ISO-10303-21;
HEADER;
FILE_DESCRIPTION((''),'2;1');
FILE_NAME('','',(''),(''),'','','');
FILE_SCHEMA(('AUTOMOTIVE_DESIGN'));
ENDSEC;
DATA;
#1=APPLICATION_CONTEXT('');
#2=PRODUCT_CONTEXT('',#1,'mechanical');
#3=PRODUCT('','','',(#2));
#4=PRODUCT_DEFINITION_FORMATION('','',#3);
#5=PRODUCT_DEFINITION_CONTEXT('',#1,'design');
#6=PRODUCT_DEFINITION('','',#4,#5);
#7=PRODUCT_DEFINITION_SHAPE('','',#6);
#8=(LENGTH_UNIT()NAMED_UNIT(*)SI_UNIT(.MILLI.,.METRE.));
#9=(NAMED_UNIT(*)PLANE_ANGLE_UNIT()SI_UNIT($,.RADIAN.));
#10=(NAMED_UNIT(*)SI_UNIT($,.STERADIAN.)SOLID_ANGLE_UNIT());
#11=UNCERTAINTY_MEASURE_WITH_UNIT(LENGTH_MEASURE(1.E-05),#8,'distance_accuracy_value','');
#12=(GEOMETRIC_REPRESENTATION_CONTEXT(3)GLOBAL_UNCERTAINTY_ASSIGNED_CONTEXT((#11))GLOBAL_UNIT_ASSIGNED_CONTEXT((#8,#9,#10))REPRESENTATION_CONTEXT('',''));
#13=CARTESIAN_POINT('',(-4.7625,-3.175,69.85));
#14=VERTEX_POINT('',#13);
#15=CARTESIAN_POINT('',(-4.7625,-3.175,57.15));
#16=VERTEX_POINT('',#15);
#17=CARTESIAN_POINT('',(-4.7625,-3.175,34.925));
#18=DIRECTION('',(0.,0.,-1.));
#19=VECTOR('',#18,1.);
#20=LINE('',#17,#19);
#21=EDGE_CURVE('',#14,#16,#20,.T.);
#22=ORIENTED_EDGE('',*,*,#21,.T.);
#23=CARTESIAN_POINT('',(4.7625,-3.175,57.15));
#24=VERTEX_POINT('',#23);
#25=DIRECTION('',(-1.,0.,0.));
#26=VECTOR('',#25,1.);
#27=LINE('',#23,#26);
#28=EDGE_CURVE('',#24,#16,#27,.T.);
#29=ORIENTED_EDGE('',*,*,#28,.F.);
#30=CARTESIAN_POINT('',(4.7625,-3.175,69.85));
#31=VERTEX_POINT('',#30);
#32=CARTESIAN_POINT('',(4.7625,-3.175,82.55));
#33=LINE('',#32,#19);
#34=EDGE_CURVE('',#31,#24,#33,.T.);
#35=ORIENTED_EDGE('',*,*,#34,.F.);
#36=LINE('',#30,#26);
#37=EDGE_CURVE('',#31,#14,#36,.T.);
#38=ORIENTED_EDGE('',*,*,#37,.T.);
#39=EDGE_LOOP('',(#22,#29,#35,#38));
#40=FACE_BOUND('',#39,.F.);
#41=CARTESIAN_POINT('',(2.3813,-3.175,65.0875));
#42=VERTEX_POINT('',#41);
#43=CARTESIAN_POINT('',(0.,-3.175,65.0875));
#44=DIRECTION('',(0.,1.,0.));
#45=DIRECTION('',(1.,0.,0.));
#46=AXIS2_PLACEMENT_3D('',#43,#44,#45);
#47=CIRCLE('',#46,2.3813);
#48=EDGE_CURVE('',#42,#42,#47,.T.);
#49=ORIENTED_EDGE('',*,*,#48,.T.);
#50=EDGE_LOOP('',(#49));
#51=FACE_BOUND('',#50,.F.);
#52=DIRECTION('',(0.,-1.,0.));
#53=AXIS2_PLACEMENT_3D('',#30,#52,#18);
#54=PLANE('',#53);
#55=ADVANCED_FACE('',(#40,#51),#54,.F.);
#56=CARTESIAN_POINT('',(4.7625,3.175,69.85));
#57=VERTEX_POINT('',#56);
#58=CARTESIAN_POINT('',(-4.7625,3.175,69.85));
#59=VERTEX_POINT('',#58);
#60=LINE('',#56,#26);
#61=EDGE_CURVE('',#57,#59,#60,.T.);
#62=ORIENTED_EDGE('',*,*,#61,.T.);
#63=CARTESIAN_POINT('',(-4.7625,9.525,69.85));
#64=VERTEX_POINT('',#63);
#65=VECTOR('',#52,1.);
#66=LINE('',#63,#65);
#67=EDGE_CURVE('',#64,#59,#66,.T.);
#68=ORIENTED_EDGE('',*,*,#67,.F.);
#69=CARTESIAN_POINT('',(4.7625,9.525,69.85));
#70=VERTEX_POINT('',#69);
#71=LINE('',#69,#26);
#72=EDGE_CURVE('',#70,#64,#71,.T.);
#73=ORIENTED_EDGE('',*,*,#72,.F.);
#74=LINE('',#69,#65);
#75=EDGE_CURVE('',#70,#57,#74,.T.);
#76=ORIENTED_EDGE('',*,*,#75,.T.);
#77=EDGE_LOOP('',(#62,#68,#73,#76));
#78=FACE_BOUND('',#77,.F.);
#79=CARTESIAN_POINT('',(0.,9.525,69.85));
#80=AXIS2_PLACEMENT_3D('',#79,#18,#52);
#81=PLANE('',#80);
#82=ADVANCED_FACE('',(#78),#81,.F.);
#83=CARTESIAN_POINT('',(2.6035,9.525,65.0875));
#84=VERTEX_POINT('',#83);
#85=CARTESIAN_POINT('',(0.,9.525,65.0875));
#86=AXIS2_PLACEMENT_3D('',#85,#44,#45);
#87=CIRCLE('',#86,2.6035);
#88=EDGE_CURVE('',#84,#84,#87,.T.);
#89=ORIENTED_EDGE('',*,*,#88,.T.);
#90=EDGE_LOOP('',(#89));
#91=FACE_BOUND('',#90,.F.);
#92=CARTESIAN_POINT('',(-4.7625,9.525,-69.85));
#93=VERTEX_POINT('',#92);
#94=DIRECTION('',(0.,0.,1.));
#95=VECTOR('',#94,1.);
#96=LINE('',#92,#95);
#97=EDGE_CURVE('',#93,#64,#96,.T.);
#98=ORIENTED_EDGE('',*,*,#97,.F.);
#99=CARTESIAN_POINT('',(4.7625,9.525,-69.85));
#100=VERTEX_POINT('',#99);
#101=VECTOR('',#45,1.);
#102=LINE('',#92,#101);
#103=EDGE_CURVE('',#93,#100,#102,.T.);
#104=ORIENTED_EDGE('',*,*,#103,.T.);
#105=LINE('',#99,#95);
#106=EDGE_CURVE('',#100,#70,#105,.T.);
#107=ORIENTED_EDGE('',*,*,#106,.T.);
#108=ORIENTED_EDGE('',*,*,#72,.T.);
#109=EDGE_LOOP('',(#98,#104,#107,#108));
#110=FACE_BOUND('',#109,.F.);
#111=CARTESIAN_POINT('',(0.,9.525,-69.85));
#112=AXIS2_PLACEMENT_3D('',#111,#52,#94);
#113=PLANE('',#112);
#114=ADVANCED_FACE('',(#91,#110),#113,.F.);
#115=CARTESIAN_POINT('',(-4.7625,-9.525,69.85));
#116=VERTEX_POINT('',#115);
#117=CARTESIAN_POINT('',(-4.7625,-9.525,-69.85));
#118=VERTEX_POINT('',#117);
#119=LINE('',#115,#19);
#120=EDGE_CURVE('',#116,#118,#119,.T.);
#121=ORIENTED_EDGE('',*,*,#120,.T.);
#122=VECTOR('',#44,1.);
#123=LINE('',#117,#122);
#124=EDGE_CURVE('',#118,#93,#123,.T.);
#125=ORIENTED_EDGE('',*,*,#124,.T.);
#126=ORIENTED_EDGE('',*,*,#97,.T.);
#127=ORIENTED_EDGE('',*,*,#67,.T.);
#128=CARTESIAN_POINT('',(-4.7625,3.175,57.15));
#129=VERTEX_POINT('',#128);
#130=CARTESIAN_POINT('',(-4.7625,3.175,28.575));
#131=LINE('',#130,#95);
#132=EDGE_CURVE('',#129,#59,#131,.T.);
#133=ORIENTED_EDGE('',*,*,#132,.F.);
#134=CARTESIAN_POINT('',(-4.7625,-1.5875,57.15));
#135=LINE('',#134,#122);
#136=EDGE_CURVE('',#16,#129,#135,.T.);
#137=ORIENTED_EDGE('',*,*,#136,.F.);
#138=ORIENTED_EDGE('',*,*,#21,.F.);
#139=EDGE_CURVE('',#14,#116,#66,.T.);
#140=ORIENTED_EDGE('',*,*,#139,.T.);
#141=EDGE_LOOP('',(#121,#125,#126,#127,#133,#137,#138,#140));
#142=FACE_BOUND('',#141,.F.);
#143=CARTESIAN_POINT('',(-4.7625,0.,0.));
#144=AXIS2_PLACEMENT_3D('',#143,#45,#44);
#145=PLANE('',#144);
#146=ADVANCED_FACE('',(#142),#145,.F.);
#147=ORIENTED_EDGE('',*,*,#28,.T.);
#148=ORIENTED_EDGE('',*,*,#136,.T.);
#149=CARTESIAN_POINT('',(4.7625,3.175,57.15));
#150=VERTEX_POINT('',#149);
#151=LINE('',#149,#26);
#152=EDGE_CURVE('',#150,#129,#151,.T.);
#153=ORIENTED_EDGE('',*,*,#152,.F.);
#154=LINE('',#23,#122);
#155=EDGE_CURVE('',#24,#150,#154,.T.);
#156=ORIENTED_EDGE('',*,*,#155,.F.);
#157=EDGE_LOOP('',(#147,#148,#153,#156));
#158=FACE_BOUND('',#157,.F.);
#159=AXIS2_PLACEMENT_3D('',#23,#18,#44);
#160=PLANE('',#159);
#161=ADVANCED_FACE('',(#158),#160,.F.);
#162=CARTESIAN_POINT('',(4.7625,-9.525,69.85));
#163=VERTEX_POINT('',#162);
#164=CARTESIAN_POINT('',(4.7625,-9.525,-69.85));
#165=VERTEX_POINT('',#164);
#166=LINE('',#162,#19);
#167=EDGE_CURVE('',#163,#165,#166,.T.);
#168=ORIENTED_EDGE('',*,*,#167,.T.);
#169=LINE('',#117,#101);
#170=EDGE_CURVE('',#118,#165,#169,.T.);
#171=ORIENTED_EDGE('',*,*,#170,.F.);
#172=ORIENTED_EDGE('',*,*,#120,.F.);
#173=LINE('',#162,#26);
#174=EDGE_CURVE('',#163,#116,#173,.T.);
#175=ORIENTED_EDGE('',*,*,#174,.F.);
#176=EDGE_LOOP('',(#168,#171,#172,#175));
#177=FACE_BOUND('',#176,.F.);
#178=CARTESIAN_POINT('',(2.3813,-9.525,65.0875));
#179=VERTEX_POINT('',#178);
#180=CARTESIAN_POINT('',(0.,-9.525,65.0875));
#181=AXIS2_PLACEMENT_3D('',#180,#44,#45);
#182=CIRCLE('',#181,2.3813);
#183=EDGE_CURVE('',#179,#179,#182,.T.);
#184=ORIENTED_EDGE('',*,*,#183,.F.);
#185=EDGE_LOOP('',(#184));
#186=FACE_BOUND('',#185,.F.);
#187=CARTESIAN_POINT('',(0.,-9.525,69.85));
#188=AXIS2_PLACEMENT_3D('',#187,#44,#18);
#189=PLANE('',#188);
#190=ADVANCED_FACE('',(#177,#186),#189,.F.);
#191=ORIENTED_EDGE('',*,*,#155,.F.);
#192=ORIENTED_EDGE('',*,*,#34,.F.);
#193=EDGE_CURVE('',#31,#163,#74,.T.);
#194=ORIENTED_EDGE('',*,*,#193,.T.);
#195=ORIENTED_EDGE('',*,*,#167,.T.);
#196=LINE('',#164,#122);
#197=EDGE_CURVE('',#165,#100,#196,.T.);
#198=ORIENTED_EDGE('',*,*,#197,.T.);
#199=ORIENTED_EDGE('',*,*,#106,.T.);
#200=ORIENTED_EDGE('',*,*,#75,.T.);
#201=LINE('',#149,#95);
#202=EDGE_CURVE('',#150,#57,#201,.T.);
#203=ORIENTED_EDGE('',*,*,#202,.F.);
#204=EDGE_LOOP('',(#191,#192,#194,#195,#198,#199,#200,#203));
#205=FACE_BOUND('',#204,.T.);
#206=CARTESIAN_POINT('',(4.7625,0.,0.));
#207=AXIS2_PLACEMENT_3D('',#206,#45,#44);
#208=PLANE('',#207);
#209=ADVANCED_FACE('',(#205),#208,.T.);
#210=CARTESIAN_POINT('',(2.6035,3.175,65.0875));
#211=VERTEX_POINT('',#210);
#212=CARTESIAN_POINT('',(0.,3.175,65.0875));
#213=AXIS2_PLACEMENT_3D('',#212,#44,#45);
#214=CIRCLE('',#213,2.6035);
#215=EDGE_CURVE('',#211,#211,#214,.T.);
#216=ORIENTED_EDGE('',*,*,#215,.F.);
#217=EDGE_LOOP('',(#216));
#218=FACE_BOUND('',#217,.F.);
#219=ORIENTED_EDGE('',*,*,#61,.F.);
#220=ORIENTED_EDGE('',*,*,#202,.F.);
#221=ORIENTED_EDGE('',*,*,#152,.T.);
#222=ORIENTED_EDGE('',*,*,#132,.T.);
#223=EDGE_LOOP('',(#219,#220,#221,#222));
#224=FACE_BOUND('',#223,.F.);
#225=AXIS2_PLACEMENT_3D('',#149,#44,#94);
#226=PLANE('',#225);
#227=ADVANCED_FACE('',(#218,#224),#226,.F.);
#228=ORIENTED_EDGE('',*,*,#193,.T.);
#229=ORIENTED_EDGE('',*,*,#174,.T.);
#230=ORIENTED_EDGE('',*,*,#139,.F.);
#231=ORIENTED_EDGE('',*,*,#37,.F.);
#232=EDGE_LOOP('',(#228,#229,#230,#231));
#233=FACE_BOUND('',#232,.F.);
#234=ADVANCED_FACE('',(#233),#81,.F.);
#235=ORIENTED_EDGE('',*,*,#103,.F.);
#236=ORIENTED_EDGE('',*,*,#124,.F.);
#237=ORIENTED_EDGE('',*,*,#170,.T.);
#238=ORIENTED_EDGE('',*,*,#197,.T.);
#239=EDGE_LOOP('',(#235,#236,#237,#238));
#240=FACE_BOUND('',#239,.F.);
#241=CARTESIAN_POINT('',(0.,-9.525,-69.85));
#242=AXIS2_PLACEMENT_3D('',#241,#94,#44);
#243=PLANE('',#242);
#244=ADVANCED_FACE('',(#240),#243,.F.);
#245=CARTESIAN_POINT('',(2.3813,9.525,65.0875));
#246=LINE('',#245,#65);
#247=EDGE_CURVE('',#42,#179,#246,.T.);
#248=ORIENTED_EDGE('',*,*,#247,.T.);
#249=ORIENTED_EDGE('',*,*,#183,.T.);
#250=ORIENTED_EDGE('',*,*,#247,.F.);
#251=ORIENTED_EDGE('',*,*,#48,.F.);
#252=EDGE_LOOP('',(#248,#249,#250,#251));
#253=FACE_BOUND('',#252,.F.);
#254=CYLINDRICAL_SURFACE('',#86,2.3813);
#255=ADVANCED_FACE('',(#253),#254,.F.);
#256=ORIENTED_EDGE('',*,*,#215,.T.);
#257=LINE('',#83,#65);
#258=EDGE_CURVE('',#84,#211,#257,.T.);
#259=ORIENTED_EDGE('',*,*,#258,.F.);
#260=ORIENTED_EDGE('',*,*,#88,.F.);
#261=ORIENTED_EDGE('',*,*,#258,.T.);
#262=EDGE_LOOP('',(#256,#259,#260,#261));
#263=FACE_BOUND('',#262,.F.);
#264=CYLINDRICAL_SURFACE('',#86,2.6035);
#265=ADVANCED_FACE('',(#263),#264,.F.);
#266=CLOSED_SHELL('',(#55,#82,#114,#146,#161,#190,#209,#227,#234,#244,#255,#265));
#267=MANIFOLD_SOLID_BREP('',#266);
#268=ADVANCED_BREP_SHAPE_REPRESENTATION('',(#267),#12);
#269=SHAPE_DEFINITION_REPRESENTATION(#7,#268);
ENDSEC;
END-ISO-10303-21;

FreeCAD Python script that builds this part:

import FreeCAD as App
import Part
import Sketcher
from FreeCAD import Vector
Q = App.Units.Quantity

doc = App.newDocument("Part")
body = doc.addObject("PartDesign::Body", "Body")

# Sketch on YZ plane
sketch1 = doc.addObject("Sketcher::SketchObject", "Sketch")
body.addObject(sketch1)
sketch1.AttachmentSupport = (doc.YZ_Plane, [""])
sketch1.MapMode = "FlatFace"
sketch1.addGeometry([
    Part.LineSegment(Vector(-10, 70, 0), Vector(-10, -70, 0)),
    Part.LineSegment(Vector(-10, -70, 0), Vector(10, -70, 0)),
    Part.LineSegment(Vector(10, -70, 0), Vector(10, 70, 0)),
    Part.LineSegment(Vector(10, 70, 0), Vector(-10, 70, 0)),
], False)
sketch1.addConstraint([
    Sketcher.Constraint("Coincident", 0, 2, 1, 1),
    Sketcher.Constraint("Coincident", 1, 2, 2, 1),
    Sketcher.Constraint("Coincident", 2, 2, 3, 1),
    Sketcher.Constraint("Coincident", 3, 2, 0, 1),
    Sketcher.Constraint("Vertical", 0),
    Sketcher.Constraint("Horizontal", 1),
    Sketcher.Constraint("Vertical", 2),
    Sketcher.Constraint("Horizontal", 3),
    Sketcher.Constraint("Symmetric", 0, 2, 2, 2, -1, 1),
    Sketcher.Constraint("DistanceY", 0, 2, 0, 1, Q("5.5 in")),
    Sketcher.Constraint("DistanceX", 1, 1, 1, 2, Q("0.75 in")),
])
pad1 = doc.addObject("PartDesign::Pad", "Pad")
body.addObject(pad1)
pad1.Profile = sketch1
pad1.Length = Q("0.375 in")
pad1.Midplane = True

# Sketch on YZ plane
sketch2 = doc.addObject("Sketcher::SketchObject", "Sketch001")
body.addObject(sketch2)
sketch2.AttachmentSupport = (doc.YZ_Plane, [""])
sketch2.MapMode = "FlatFace"
sketch2.AttachmentOffset = App.Placement(Vector(0, 0, 0.1875 * 25.4), App.Rotation())
sketch2.addGeometry([
    Part.LineSegment(Vector(3, 70, 0), Vector(-3, 70, 0)),
    Part.LineSegment(Vector(-3, 70, 0), Vector(-3, 57, 0)),
    Part.LineSegment(Vector(-3, 57, 0), Vector(3, 57, 0)),
    Part.LineSegment(Vector(3, 57, 0), Vector(3, 70, 0)),
], False)
sketch2.addConstraint([
    Sketcher.Constraint("Coincident", 0, 2, 1, 1),
    Sketcher.Constraint("Coincident", 1, 2, 2, 1),
    Sketcher.Constraint("Coincident", 2, 2, 3, 1),
    Sketcher.Constraint("Coincident", 3, 2, 0, 1),
    Sketcher.Constraint("Horizontal", 0),
    Sketcher.Constraint("Vertical", 1),
    Sketcher.Constraint("Horizontal", 2),
    Sketcher.Constraint("Vertical", 3),
    Sketcher.Constraint("DistanceY", 1, 2, 1, 1, Q("0.5 in")),
    Sketcher.Constraint("DistanceX", 0, 2, 0, 1, Q("0.25 in")),
    Sketcher.Constraint("DistanceY", -1, 1, 0, 2, Q("2.75 in")),
    Sketcher.Constraint("DistanceX", 0, 2, -1, 1, Q("0.125 in")),
])
pocket1 = doc.addObject("PartDesign::Pocket", "Pocket")
body.addObject(pocket1)
pocket1.Profile = sketch2
pocket1.Length = Q("1 in")

# Sketch on XZ plane
sketch3 = doc.addObject("Sketcher::SketchObject", "Sketch002")
body.addObject(sketch3)
sketch3.AttachmentSupport = (doc.XZ_Plane, [""])
sketch3.MapMode = "FlatFace"
sketch3.AttachmentOffset = App.Placement(Vector(0, 0, -0.375 * 25.4), App.Rotation())
sketch3.addGeometry(Part.Circle(Vector(0, 65.1, 0), Vector(0, 0, 1), 2.6), False)
sketch3.addConstraint([
    Sketcher.Constraint("PointOnObject", 0, 3, -2),
    Sketcher.Constraint("Diameter", 0, Q("0.205 in")),
    Sketcher.Constraint("DistanceY", -1, 1, 0, 3, Q("2.5625 in")),
])
pocket2 = doc.addObject("PartDesign::Pocket", "Pocket001")
body.addObject(pocket2)
pocket2.Profile = sketch3
pocket2.Length = Q("0.25 in")
pocket2.Reversed = True

# Sketch on XZ plane
sketch4 = doc.addObject("Sketcher::SketchObject", "Sketch003")
body.addObject(sketch4)
sketch4.AttachmentSupport = (doc.XZ_Plane, [""])
sketch4.MapMode = "FlatFace"
sketch4.AttachmentOffset = App.Placement(Vector(0, 0, -0.375 * 25.4), App.Rotation())
sketch4.addGeometry(Part.Circle(Vector(0, 65.1, 0), Vector(0, 0, 1), 2.4), False)
sketch4.addConstraint([
    Sketcher.Constraint("PointOnObject", 0, 3, -2),
    Sketcher.Constraint("Diameter", 0, Q("0.1875 in")),
    Sketcher.Constraint("DistanceY", -1, 1, 0, 3, Q("2.5625 in")),
])
pocket3 = doc.addObject("PartDesign::Pocket", "Pocket002")
body.addObject(pocket3)
pocket3.Profile = sketch4
pocket3.Length = Q("1 in")
pocket3.Reversed = True

doc.recompute()
